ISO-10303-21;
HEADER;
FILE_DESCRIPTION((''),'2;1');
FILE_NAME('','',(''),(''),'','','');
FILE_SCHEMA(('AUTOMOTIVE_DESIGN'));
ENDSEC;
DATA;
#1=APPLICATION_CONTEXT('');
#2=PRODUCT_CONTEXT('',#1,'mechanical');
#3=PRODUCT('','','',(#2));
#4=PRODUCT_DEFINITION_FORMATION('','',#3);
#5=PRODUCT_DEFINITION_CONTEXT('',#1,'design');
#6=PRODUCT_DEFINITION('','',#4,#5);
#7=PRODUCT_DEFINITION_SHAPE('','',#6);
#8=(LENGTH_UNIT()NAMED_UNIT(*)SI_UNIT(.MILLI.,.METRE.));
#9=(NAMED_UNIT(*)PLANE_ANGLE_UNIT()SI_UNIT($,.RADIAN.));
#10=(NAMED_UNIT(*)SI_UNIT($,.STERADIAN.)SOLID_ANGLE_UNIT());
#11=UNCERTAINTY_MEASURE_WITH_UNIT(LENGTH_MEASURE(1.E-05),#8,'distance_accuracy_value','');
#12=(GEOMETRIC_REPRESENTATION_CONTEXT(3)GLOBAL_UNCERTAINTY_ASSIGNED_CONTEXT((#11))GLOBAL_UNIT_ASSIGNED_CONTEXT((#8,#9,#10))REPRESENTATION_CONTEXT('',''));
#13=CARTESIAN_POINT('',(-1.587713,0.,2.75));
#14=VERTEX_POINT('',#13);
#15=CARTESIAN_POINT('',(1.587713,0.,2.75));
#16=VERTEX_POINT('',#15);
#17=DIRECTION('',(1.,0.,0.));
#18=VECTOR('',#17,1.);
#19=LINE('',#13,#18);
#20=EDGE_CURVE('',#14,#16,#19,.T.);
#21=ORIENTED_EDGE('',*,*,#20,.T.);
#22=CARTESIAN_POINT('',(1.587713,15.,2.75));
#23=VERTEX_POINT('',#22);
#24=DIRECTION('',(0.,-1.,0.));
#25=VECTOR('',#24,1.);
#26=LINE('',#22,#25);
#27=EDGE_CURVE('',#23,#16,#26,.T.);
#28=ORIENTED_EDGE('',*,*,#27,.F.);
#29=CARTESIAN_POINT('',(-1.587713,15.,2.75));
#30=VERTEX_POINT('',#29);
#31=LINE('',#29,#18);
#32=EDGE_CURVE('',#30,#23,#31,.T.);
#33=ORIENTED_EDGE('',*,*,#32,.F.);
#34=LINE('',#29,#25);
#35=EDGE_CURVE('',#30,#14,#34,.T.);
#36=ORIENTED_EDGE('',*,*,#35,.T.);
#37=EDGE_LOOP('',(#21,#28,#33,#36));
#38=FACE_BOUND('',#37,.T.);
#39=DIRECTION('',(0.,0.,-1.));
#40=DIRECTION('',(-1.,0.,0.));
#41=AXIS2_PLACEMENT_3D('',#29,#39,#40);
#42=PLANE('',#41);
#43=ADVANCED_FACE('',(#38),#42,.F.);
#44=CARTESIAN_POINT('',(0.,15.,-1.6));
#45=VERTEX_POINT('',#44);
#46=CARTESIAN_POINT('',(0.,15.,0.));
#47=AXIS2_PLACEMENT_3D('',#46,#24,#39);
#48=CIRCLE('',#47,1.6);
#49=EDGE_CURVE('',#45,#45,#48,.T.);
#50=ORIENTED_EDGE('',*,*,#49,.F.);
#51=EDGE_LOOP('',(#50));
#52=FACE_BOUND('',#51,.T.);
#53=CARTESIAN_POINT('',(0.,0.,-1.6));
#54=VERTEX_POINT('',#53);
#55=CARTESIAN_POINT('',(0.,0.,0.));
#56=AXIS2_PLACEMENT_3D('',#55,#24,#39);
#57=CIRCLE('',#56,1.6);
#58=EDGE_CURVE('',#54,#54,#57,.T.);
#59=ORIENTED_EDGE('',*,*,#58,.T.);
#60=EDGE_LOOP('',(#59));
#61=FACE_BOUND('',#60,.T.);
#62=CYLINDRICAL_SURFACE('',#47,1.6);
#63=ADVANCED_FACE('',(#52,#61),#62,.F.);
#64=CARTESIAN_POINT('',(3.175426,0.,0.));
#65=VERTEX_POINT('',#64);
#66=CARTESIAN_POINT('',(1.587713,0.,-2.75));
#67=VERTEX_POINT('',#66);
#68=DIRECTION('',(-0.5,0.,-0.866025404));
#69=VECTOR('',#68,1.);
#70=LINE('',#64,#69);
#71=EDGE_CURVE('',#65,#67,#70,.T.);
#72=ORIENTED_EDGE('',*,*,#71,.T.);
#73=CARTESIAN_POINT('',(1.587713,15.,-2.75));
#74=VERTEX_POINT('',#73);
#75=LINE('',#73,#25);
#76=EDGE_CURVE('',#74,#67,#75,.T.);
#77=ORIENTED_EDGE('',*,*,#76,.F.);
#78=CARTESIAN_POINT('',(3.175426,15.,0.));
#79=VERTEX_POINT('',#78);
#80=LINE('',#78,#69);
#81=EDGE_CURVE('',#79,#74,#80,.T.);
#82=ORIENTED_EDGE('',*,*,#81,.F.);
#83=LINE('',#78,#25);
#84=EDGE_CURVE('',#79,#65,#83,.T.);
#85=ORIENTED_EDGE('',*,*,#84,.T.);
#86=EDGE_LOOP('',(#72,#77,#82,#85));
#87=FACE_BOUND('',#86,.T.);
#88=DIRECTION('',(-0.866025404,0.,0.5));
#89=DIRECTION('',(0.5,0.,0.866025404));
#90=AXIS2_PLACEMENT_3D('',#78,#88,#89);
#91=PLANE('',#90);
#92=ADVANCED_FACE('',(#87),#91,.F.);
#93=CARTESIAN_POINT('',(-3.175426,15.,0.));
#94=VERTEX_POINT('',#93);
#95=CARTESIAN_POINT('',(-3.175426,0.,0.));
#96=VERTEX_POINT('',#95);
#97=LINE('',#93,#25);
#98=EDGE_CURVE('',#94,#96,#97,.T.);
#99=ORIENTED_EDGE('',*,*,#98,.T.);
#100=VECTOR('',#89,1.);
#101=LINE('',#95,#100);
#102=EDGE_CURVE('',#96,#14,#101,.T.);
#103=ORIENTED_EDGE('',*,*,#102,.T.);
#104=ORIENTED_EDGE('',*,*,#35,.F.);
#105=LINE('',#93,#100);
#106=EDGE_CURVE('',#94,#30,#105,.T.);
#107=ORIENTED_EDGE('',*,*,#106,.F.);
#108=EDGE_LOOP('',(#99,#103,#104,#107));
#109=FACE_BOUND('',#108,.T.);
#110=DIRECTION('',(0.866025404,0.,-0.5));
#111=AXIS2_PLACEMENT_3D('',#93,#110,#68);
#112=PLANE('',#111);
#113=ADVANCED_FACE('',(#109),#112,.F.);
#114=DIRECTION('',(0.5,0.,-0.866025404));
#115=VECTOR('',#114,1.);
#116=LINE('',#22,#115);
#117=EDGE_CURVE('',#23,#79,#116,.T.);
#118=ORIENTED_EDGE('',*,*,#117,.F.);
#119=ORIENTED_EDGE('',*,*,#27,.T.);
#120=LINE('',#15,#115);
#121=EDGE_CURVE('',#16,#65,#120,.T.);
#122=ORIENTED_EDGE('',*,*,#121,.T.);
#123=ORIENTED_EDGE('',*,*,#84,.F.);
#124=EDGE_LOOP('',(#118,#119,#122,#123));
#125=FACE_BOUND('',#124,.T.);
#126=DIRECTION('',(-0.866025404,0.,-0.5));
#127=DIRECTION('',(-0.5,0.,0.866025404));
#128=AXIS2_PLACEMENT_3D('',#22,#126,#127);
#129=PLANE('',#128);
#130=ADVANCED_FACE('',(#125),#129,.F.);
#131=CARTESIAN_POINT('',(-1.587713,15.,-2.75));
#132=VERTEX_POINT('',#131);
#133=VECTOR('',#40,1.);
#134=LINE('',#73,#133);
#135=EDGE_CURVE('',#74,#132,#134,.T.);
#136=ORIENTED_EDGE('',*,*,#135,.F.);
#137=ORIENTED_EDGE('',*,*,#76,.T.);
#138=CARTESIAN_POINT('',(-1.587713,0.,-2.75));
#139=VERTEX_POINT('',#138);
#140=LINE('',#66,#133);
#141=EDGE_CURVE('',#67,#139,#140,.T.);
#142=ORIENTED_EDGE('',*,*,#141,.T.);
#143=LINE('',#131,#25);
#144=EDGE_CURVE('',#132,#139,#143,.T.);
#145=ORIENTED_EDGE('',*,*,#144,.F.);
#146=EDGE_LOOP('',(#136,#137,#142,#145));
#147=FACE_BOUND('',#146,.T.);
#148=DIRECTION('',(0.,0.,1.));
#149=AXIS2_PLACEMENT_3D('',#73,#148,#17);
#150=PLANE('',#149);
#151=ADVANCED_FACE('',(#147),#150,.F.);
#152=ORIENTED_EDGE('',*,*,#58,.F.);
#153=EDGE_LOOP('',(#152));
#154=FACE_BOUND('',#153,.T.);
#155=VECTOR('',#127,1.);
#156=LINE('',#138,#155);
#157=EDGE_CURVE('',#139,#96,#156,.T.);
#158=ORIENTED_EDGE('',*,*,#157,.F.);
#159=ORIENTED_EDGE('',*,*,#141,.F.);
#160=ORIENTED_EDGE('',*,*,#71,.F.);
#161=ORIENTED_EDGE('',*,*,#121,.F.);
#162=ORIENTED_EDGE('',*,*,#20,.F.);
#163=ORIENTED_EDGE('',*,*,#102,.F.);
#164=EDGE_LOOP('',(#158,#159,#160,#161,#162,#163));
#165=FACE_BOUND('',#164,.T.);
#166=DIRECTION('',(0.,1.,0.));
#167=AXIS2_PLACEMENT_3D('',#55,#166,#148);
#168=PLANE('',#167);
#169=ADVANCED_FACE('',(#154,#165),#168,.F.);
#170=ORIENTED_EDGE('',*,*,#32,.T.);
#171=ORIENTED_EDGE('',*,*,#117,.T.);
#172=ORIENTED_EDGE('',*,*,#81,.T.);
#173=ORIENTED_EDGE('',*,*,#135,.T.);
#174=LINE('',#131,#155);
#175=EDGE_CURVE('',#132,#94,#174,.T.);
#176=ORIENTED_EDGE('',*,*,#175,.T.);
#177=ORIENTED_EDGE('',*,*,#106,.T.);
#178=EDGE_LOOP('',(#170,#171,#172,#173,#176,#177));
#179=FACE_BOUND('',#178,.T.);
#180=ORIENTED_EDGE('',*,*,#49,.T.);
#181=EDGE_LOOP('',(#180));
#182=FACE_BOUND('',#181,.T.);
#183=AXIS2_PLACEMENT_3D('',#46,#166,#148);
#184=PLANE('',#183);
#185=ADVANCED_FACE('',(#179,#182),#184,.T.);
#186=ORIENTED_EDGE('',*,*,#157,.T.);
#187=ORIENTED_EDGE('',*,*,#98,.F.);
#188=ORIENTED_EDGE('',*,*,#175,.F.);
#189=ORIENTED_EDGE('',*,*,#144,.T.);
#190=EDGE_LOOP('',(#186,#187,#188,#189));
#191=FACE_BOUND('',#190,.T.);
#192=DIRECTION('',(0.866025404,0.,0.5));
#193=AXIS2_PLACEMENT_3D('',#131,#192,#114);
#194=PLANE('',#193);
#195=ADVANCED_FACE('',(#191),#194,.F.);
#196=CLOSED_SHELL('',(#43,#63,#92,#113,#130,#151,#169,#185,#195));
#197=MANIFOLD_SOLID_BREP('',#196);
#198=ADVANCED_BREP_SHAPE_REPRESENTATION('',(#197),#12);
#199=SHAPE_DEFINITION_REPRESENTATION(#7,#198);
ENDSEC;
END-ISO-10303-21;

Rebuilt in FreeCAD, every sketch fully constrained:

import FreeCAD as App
import Part
import Sketcher
from FreeCAD import Vector
Q = App.Units.Quantity

doc = App.newDocument("Part")
body = doc.addObject("PartDesign::Body", "Body")

sketch1 = body.newObject("Sketcher::SketchObject", "Sketch")
sketch1.AttachmentSupport = (doc.getObject("XZ_Plane"), [""])
sketch1.MapMode = "FlatFace"
sketch1.addGeometry([
    Part.LineSegment(Vector(3.2, 0, 0), Vector(1.6, -2.8, 0)),
    Part.LineSegment(Vector(1.6, -2.8, 0), Vector(-1.6, -2.8, 0)),
    Part.LineSegment(Vector(-1.6, -2.8, 0), Vector(-3.2, 0, 0)),
    Part.LineSegment(Vector(-3.2, 0, 0), Vector(-1.6, 2.8, 0)),
    Part.LineSegment(Vector(-1.6, 2.8, 0), Vector(1.6, 2.8, 0)),
    Part.LineSegment(Vector(1.6, 2.8, 0), Vector(3.2, 0, 0)),
], False)
sketch1.addConstraint([
    Sketcher.Constraint("Coincident", 0, 2, 1, 1),
    Sketcher.Constraint("Coincident", 1, 2, 2, 1),
    Sketcher.Constraint("Coincident", 2, 2, 3, 1),
    Sketcher.Constraint("Coincident", 3, 2, 4, 1),
    Sketcher.Constraint("Coincident", 4, 2, 5, 1),
    Sketcher.Constraint("Coincident", 5, 2, 0, 1),
    Sketcher.Constraint("Horizontal", 1),
    Sketcher.Constraint("Horizontal", 4),
    Sketcher.Constraint("Symmetric", 0, 2, 3, 2, -1, 1),
    Sketcher.Constraint("Symmetric", 2, 2, 5, 2, -1, 1),
    Sketcher.Constraint("PointOnObject", 2, 2, -1),
    Sketcher.Constraint("Parallel", 2, 5),
    Sketcher.Constraint("Vertical", 1, 2, 3, 2),
    Sketcher.Constraint("Angle", 0, Q("-120 deg")),
    Sketcher.Constraint("DistanceY", 1, 2, 3, 2, 5.5),
    Sketcher.Constraint("DistanceX", 1, 2, 1, 1, 3.175426),
])
pad1 = body.newObject("PartDesign::Pad", "Pad")
pad1.Profile = sketch1
pad1.Length = 15
pad1.Reversed = True

sketch2 = body.newObject("Sketcher::SketchObject", "Sketch001")
sketch2.AttachmentSupport = (doc.getObject("XZ_Plane"), [""])
sketch2.MapMode = "FlatFace"
sketch2.addGeometry(Part.Circle(Vector(0, 0, 0), Vector(0, 0, 1), 1.6), False)
sketch2.addConstraint([
    Sketcher.Constraint("Coincident", 0, 3, -1, 1),
    Sketcher.Constraint("Diameter", 0, 3.2),
])
pocket1 = body.newObject("PartDesign::Pocket", "Pocket")
pocket1.Profile = sketch2
pocket1.Length = 15

doc.recompute()
